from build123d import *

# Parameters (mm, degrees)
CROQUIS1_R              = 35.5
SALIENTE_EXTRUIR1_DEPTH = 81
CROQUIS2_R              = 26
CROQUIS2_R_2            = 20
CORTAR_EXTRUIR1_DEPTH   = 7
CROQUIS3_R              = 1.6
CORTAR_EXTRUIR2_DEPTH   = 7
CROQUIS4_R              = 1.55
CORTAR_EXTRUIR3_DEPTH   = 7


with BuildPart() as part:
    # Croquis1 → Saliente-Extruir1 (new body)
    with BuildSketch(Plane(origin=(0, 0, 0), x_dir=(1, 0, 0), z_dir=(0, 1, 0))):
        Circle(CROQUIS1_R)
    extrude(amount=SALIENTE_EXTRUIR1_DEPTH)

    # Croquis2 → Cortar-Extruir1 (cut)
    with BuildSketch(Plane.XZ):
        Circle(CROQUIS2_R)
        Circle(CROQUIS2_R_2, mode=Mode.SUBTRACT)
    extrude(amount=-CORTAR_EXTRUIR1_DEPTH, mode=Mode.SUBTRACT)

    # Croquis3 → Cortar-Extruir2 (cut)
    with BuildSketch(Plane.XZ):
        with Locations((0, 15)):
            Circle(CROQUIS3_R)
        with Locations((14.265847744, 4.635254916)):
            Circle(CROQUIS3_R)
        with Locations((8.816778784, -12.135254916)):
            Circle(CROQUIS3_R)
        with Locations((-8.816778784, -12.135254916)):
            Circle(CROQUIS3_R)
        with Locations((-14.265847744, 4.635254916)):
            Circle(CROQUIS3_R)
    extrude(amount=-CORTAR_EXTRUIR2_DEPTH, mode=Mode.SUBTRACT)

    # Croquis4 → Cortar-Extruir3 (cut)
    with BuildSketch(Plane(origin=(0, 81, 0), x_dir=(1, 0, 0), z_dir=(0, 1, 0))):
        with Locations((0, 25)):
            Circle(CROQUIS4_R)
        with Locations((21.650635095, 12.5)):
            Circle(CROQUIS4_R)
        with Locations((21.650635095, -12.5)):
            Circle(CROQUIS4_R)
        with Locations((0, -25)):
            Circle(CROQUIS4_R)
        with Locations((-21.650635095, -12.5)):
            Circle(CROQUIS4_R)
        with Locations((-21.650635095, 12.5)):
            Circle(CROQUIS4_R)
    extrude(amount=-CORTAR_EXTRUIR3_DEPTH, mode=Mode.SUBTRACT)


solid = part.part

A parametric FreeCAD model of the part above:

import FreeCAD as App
import Part
import Sketcher

V = App.Vector
Q = App.Units.Quantity

doc = App.newDocument("Part")
body = doc.addObject("PartDesign::Body", "Body")

# Sketch on XZ plane
sketch1 = body.newObject("Sketcher::SketchObject", "Sketch")
sketch1.AttachmentSupport = (doc.getObject("XZ_Plane"), [""])
sketch1.MapMode = "FlatFace"
sketch1.addGeometry(Part.Circle(V(0, 0, 0), V(0, 0, 1), 36), False)
sketch1.addConstraint(Sketcher.Constraint("Coincident", 0, 3, -1, 1))
sketch1.addConstraint(Sketcher.Constraint("Diameter", 0, Q("71 mm")))
pad1 = body.newObject("PartDesign::Pad", "Pad")
pad1.Profile = sketch1
pad1.Length = 81
pad1.Reversed = True

# Sketch on XZ plane
sketch2 = body.newObject("Sketcher::SketchObject", "Sketch001")
sketch2.AttachmentSupport = (doc.getObject("XZ_Plane"), [""])
sketch2.MapMode = "FlatFace"
sketch2.addGeometry(Part.Circle(V(0, 0, 0), V(0, 0, 1), 26), False)
sketch2.addGeometry(Part.Circle(V(0, 0, 0), V(0, 0, 1), 20), False)
sketch2.addConstraint(Sketcher.Constraint("Coincident", 0, 3, -1, 1))
sketch2.addConstraint(Sketcher.Constraint("Coincident", 1, 3, -1, 1))
sketch2.addConstraint(Sketcher.Constraint("Diameter", 0, Q("52 mm")))
sketch2.addConstraint(Sketcher.Constraint("Diameter", 1, Q("40 mm")))
pocket1 = body.newObject("PartDesign::Pocket", "Pocket")
pocket1.Profile = sketch2
pocket1.Length = 7

# Sketch on XZ plane
sketch3 = body.newObject("Sketcher::SketchObject", "Sketch002")
sketch3.AttachmentSupport = (doc.getObject("XZ_Plane"), [""])
sketch3.MapMode = "FlatFace"
sketch3.addGeometry(Part.Circle(V(0, 15, 0), V(0, 0, 1), 1.6), False)
sketch3.addGeometry(Part.Circle(V(14.3, 4.6, 0), V(0, 0, 1), 1.6), False)
sketch3.addGeometry(Part.Circle(V(8.8, -12.1, 0), V(0, 0, 1), 1.6), False)
sketch3.addGeometry(Part.Circle(V(-8.8, -12.1, 0), V(0, 0, 1), 1.6), False)
sketch3.addGeometry(Part.Circle(V(-14.3, 4.6, 0), V(0, 0, 1), 1.6), False)
sketch3.addConstraint(Sketcher.Constraint("Equal", 0, 1))
sketch3.addConstraint(Sketcher.Constraint("Equal", 1, 2))
sketch3.addConstraint(Sketcher.Constraint("Equal", 2, 3))
sketch3.addConstraint(Sketcher.Constraint("Equal", 3, 4))
sketch3.addConstraint(Sketcher.Constraint("Symmetric", 2, 3, 3, 3, -2))
sketch3.addConstraint(Sketcher.Constraint("Symmetric", 1, 3, 4, 3, -2))
sketch3.addConstraint(Sketcher.Constraint("PointOnObject", 0, 3, -2))
sketch3.addConstraint(Sketcher.Constraint("Diameter", 0, Q("3.2 mm")))
sketch3.addConstraint(Sketcher.Constraint("DistanceY", -1, 1, 0, 3, Q("15 mm")))
sketch3.addConstraint(Sketcher.Constraint("DistanceX", -1, 1, 2, 3, Q("8.816779 mm")))
sketch3.addConstraint(Sketcher.Constraint("DistanceX", 2, 3, 1, 3, Q("5.449069 mm")))
sketch3.addConstraint(Sketcher.Constraint("DistanceY", 2, 3, 1, 3, Q("16.77051 mm")))
sketch3.addConstraint(Sketcher.Constraint("DistanceY", -1, 1, 1, 3, Q("4.635255 mm")))
pocket2 = body.newObject("PartDesign::Pocket", "Pocket001")
pocket2.Profile = sketch3
pocket2.Length = 7

# Sketch on XZ plane
sketch4 = body.newObject("Sketcher::SketchObject", "Sketch003")
sketch4.AttachmentSupport = (doc.getObject("XZ_Plane"), [""])
sketch4.MapMode = "FlatFace"
sketch4.AttachmentOffset = App.Placement(V(0, 0, -81), App.Rotation())
sketch4.addGeometry(Part.Circle(V(0, -25, 0), V(0, 0, 1), 1.6), False)
sketch4.addGeometry(Part.Circle(V(21.7, -12.5, 0), V(0, 0, 1), 1.6), False)
sketch4.addGeometry(Part.Circle(V(21.7, 12.5, 0), V(0, 0, 1), 1.6), False)
sketch4.addGeometry(Part.Circle(V(0, 25, 0), V(0, 0, 1), 1.6), False)
sketch4.addGeometry(Part.Circle(V(-21.7, 12.5, 0), V(0, 0, 1), 1.6), False)
sketch4.addGeometry(Part.Circle(V(-21.7, -12.5, 0), V(0, 0, 1), 1.6), False)
sketch4.addConstraint(Sketcher.Constraint("Equal", 0, 1))
sketch4.addConstraint(Sketcher.Constraint("Equal", 1, 2))
sketch4.addConstraint(Sketcher.Constraint("Equal", 2, 3))
sketch4.addConstraint(Sketcher.Constraint("Equal", 3, 4))
sketch4.addConstraint(Sketcher.Constraint("Equal", 4, 5))
sketch4.addConstraint(Sketcher.Constraint("Symmetric", 0, 3, 3, 3, -1, 1))
sketch4.addConstraint(Sketcher.Constraint("Symmetric", 1, 3, 4, 3, -1, 1))
sketch4.addConstraint(Sketcher.Constraint("Symmetric", 2, 3, 5, 3, -1, 1))
sketch4.addConstraint(Sketcher.Constraint("Symmetric", 2, 3, 4, 3, -2))
sketch4.addConstraint(Sketcher.Constraint("PointOnObject", 0, 3, -2))
sketch4.addConstraint(Sketcher.Constraint("Diameter", 0, Q("3.1 mm")))
sketch4.addConstraint(Sketcher.Constraint("DistanceY", 0, 3, -1, 1, Q("25 mm")))
sketch4.addConstraint(Sketcher.Constraint("DistanceY", 1, 3, 2, 3, Q("25 mm")))
sketch4.addConstraint(Sketcher.Constraint("DistanceX", 4, 3, 2, 3, Q("43.30127 mm")))
pocket3 = body.newObject("PartDesign::Pocket", "Pocket002")
pocket3.Profile = sketch4
pocket3.Length = 7
pocket3.Reversed = True

doc.recompute()
